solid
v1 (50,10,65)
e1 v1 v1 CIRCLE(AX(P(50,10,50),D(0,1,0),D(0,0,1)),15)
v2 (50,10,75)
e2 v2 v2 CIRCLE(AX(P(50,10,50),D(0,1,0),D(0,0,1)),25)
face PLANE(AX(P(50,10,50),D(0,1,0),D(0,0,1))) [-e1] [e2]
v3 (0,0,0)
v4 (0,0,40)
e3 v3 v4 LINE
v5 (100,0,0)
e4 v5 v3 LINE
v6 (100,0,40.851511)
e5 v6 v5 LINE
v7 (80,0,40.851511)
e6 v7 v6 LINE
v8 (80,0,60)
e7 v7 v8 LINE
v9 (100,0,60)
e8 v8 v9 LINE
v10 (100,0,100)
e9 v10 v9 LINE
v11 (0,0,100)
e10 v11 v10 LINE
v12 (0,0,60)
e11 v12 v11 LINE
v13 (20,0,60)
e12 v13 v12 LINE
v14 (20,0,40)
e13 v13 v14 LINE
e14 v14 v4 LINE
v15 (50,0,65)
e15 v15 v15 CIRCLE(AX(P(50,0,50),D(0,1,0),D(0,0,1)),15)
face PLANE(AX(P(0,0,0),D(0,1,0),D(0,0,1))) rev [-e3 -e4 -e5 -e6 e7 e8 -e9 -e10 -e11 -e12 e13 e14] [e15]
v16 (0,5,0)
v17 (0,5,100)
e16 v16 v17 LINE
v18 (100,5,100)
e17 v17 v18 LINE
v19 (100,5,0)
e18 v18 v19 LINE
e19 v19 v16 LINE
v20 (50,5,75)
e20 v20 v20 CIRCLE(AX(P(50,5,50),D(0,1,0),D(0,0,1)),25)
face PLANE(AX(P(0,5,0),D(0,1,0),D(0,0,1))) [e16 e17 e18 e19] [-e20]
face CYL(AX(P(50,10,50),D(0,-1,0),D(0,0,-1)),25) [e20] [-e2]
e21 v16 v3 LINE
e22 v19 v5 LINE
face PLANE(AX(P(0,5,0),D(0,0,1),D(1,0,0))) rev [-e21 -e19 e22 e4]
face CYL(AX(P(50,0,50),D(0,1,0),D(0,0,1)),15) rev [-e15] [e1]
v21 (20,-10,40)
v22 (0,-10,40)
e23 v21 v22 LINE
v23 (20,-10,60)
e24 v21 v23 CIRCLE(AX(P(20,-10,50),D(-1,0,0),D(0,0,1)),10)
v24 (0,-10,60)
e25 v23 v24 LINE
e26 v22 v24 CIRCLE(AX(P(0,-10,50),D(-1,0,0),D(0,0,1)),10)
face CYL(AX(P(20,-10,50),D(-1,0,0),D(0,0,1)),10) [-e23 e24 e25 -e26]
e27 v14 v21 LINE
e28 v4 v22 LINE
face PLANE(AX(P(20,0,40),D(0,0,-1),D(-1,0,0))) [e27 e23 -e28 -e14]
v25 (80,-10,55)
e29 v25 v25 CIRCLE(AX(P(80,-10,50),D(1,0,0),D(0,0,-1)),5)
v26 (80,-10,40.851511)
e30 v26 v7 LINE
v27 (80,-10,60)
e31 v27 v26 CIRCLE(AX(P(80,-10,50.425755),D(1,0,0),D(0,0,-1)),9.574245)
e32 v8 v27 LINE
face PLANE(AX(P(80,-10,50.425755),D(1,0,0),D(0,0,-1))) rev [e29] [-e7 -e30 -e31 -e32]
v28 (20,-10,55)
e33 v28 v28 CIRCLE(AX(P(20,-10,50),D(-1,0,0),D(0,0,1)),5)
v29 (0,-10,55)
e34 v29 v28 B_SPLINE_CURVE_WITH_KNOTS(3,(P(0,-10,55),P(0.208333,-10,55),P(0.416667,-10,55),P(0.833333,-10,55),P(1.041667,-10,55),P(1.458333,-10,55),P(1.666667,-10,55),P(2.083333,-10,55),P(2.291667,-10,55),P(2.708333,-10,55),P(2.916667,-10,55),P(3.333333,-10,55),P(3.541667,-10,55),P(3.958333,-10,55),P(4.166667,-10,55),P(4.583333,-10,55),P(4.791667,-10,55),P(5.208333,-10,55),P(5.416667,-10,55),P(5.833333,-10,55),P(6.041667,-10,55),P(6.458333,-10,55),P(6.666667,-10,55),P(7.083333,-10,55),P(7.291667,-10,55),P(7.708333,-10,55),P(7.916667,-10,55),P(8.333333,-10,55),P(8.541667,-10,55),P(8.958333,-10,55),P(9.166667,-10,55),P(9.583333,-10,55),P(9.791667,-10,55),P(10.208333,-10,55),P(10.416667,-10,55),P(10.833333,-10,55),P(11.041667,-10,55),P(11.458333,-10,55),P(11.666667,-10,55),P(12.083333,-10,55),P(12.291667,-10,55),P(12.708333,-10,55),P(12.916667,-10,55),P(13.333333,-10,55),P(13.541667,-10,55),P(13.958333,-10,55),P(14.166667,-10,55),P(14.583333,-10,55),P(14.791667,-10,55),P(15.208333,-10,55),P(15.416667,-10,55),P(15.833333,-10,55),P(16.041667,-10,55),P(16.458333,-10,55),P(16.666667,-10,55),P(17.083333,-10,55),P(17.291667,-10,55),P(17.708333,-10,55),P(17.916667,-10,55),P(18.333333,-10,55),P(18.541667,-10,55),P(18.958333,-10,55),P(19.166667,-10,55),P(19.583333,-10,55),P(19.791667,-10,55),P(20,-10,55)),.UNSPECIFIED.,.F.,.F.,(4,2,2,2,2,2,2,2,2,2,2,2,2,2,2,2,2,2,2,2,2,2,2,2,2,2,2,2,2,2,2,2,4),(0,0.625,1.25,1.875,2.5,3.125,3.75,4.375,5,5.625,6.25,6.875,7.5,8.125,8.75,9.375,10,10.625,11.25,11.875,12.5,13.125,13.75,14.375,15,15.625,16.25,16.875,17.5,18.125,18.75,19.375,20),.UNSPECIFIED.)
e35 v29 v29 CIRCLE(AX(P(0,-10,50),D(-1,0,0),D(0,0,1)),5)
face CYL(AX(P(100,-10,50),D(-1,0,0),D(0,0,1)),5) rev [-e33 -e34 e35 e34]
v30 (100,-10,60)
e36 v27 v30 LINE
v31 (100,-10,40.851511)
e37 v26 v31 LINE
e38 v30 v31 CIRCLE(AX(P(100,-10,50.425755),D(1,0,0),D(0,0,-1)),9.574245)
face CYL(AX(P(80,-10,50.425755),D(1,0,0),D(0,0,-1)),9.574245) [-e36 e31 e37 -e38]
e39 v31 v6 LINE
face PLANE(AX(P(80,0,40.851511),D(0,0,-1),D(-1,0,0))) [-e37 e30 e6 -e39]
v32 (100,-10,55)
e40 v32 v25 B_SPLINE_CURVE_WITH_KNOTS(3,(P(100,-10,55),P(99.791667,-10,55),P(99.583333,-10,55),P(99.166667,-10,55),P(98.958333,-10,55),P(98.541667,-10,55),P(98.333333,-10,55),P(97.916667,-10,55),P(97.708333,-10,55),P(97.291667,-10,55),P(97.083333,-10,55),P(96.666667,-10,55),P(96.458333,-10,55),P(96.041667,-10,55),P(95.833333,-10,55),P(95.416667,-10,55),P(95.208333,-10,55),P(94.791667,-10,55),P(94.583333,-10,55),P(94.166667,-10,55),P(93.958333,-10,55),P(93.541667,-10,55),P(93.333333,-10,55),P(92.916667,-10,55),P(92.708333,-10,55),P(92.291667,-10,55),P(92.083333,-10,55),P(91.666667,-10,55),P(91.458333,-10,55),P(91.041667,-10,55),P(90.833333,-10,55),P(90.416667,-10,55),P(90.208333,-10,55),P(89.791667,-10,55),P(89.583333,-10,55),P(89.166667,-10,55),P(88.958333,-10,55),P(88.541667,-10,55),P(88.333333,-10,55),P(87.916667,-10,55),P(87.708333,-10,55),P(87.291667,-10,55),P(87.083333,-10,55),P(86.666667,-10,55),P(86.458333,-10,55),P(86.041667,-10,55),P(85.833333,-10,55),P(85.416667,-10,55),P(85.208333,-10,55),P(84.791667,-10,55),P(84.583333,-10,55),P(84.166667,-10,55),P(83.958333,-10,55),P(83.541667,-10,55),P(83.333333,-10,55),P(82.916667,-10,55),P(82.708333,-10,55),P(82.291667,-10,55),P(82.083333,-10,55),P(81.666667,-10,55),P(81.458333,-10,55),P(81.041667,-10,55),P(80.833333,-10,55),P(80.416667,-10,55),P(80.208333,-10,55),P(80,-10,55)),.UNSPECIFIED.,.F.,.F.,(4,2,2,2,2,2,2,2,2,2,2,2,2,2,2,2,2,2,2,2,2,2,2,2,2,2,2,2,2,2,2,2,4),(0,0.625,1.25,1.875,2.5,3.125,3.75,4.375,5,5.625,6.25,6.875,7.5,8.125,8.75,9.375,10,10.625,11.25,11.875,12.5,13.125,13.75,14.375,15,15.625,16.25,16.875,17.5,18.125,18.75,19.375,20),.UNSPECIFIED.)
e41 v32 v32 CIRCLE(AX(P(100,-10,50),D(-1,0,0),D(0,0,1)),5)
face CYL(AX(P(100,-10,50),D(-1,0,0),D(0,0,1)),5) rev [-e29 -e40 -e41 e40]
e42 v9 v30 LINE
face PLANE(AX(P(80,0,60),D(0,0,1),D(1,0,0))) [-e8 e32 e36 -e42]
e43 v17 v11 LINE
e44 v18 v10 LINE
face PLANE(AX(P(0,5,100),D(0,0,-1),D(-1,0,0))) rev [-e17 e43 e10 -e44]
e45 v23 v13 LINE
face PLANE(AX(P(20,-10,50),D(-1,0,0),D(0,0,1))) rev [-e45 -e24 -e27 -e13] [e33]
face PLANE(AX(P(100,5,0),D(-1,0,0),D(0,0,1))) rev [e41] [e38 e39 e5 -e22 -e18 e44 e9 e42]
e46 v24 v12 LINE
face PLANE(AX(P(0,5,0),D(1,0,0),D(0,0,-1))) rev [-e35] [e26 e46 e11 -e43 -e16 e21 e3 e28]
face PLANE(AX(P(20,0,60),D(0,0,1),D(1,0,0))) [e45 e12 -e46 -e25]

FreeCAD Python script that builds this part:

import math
import FreeCAD as App
import Part
import Sketcher
Q = App.Units.Quantity

doc = App.newDocument("Part")
body = doc.addObject("PartDesign::Body", "Body")

# Sketch on XZ plane
sketch1 = doc.addObject("Sketcher::SketchObject", "Sketch")
body.addObject(sketch1)
sketch1.AttachmentSupport = (doc.XZ_Plane, [""])
sketch1.MapMode = "FlatFace"
sketch1.addGeometry([
    Part.LineSegment(App.Vector(0, 0, 0), App.Vector(0, 100, 0)),
    Part.LineSegment(App.Vector(0, 100, 0), App.Vector(100, 100, 0)),
    Part.LineSegment(App.Vector(100, 100, 0), App.Vector(100, 0, 0)),
    Part.LineSegment(App.Vector(100, 0, 0), App.Vector(0, 0, 0)),
], False)
sketch1.addConstraint([
    Sketcher.Constraint("Coincident", 0, 2, 1, 1),
    Sketcher.Constraint("Coincident", 1, 2, 2, 1),
    Sketcher.Constraint("Coincident", 2, 2, 3, 1),
    Sketcher.Constraint("Coincident", 3, 2, 0, 1),
    Sketcher.Constraint("Vertical", 0),
    Sketcher.Constraint("Horizontal", 1),
    Sketcher.Constraint("Vertical", 2),
    Sketcher.Constraint("Horizontal", 3),
    Sketcher.Constraint("Coincident", 3, 2, -1, 1),
    Sketcher.Constraint("Equal", 3, 0),
    Sketcher.Constraint("DistanceX", 1, 1, 1, 2, Q("100 mm")),
])
pad1 = doc.addObject("PartDesign::Pad", "Pad")
body.addObject(pad1)
pad1.Profile = sketch1
pad1.Length = 5
pad1.Reversed = True

# Sketch on XZ plane
sketch2 = doc.addObject("Sketcher::SketchObject", "Sketch001")
body.addObject(sketch2)
sketch2.AttachmentSupport = (doc.XZ_Plane, [""])
sketch2.MapMode = "FlatFace"
sketch2.AttachmentOffset = App.Placement(App.Vector(0, 0, -5), App.Rotation())
sketch2.addGeometry(Part.Circle(App.Vector(50, 50, 0), App.Vector(0, 0, 1), 25), False)
sketch2.addConstraint([
    Sketcher.Constraint("Diameter", 0, Q("50 mm")),
    Sketcher.Constraint("DistanceX", -1, 1, 0, 3, Q("50 mm")),
    Sketcher.Constraint("DistanceY", -1, 1, 0, 3, Q("50 mm")),
])
pad2 = doc.addObject("PartDesign::Pad", "Pad001")
body.addObject(pad2)
pad2.Profile = sketch2
pad2.Length = 5
pad2.Reversed = True

# Sketch on XZ plane
sketch3 = doc.addObject("Sketcher::SketchObject", "Sketch002")
body.addObject(sketch3)
sketch3.AttachmentSupport = (doc.XZ_Plane, [""])
sketch3.MapMode = "FlatFace"
sketch3.AttachmentOffset = App.Placement(App.Vector(0, 0, -10), App.Rotation())
sketch3.addGeometry(Part.Circle(App.Vector(50, 50, 0), App.Vector(0, 0, 1), 15), False)
sketch3.addConstraint([
    Sketcher.Constraint("Diameter", 0, Q("30 mm")),
    Sketcher.Constraint("DistanceX", -1, 1, 0, 3, Q("50 mm")),
    Sketcher.Constraint("DistanceY", -1, 1, 0, 3, Q("50 mm")),
])
pocket1 = doc.addObject("PartDesign::Pocket", "Pocket")
body.addObject(pocket1)
pocket1.Profile = sketch3
pocket1.Length = 10
pocket1.Reversed = True

# Sketch on YZ plane
sketch4 = doc.addObject("Sketcher::SketchObject", "Sketch003")
body.addObject(sketch4)
sketch4.AttachmentSupport = (doc.YZ_Plane, [""])
sketch4.MapMode = "FlatFace"
sketch4.AttachmentOffset = App.Placement(App.Vector(0, 0, 100), App.Rotation())
sketch4.addGeometry([
    Part.LineSegment(App.Vector(0, 41, 0), App.Vector(0, 60, 0)),
    Part.LineSegment(App.Vector(0, 60, 0), App.Vector(-10, 60, 0)),
    Part.ArcOfCircle(Part.Circle(App.Vector(-10, 50, 0), App.Vector(0, 0, 1), 10), math.radians(90), math.radians(270)),
    Part.LineSegment(App.Vector(-10, 41, 0), App.Vector(0, 41, 0)),
], False)
sketch4.addConstraint([
    Sketcher.Constraint("Coincident", 0, 2, 1, 1),
    Sketcher.Constraint("Tangent", 1, 2, 2, 1),
    Sketcher.Constraint("Tangent", 2, 2, 3, 1),
    Sketcher.Constraint("Coincident", 3, 2, 0, 1),
    Sketcher.Constraint("Vertical", 0),
    Sketcher.Constraint("Horizontal", 1),
    Sketcher.Constraint("Horizontal", 3),
    Sketcher.Constraint("PointOnObject", 0, 2, -2),
    Sketcher.Constraint("DistanceX", 1, 2, 1, 1, Q("10 mm")),
    Sketcher.Constraint("DistanceY", -1, 1, 0, 2, Q("60 mm")),
    Sketcher.Constraint("Radius", 2, Q("9.574245 mm")),
])
pad3 = doc.addObject("PartDesign::Pad", "Pad002")
body.addObject(pad3)
pad3.Profile = sketch4
pad3.Length = 20
pad3.Reversed = True

# Sketch on YZ plane
sketch5 = doc.addObject("Sketcher::SketchObject", "Sketch004")
body.addObject(sketch5)
sketch5.AttachmentSupport = (doc.YZ_Plane, [""])
sketch5.MapMode = "FlatFace"
sketch5.addGeometry([
    Part.LineSegment(App.Vector(0, 60, 0), App.Vector(0, 40, 0)),
    Part.LineSegment(App.Vector(0, 40, 0), App.Vector(-10, 40, 0)),
    Part.ArcOfCircle(Part.Circle(App.Vector(-10, 50, 0), App.Vector(0, 0, 1), 10), math.radians(90), math.radians(270)),
    Part.LineSegment(App.Vector(-10, 60, 0), App.Vector(0, 60, 0)),
], False)
sketch5.addConstraint([
    Sketcher.Constraint("Coincident", 0, 2, 1, 1),
    Sketcher.Constraint("Tangent", 1, 2, 2, 2),
    Sketcher.Constraint("Tangent", 2, 1, 3, 1),
    Sketcher.Constraint("Coincident", 3, 2, 0, 1),
    Sketcher.Constraint("Vertical", 0),
    Sketcher.Constraint("Horizontal", 1),
    Sketcher.Constraint("Horizontal", 3),
    Sketcher.Constraint("PointOnObject", 0, 2, -2),
    Sketcher.Constraint("Radius", 2, Q("10 mm")),
    Sketcher.Constraint("DistanceX", 1, 2, 1, 1, Q("10 mm")),
    Sketcher.Constraint("DistanceY", -1, 1, 2, 3, Q("50 mm")),
])
pad4 = doc.addObject("PartDesign::Pad", "Pad003")
body.addObject(pad4)
pad4.Profile = sketch5
pad4.Length = 20

# Sketch on YZ plane
sketch6 = doc.addObject("Sketcher::SketchObject", "Sketch005")
body.addObject(sketch6)
sketch6.AttachmentSupport = (doc.YZ_Plane, [""])
sketch6.MapMode = "FlatFace"
sketch6.addGeometry(Part.Circle(App.Vector(-10, 50, 0), App.Vector(0, 0, 1), 5), False)
sketch6.addConstraint([
    Sketcher.Constraint("Diameter", 0, Q("10 mm")),
    Sketcher.Constraint("DistanceX", 0, 3, -1, 1, Q("10 mm")),
    Sketcher.Constraint("DistanceY", -1, 1, 0, 3, Q("50 mm")),
])
pocket2 = doc.addObject("PartDesign::Pocket", "Pocket001")
body.addObject(pocket2)
pocket2.Profile = sketch6
pocket2.Length = 100
pocket2.Reversed = True

doc.recompute()
